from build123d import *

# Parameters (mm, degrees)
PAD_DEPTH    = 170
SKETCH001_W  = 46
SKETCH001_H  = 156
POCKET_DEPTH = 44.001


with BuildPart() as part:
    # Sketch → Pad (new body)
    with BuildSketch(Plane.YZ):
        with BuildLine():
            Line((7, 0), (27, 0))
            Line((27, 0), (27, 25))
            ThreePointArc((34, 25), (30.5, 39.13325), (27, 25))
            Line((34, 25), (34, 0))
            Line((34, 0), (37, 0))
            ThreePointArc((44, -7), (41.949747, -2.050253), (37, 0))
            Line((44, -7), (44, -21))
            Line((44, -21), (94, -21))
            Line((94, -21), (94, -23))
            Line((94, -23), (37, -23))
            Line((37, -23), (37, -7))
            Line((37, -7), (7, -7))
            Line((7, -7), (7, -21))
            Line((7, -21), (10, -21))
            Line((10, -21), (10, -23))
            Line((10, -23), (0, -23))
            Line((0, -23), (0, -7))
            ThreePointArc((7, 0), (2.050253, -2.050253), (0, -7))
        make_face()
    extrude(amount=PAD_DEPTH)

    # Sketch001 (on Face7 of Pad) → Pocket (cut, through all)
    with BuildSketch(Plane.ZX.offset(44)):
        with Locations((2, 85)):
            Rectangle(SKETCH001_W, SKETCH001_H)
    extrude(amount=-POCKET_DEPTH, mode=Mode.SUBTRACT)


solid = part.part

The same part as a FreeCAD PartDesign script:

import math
import FreeCAD as App
import Part
import Sketcher
from FreeCAD import Vector
Q = App.Units.Quantity

doc = App.newDocument("Part")
body = doc.addObject("PartDesign::Body", "Body")

# Sketch on YZ plane
sketch1 = body.newObject("Sketcher::SketchObject", "Sketch")
sketch1.AttachmentSupport = (doc.getObject("YZ_Plane"), [""])
sketch1.MapMode = "FlatFace"
sketch1.addGeometry([
    Part.LineSegment(Vector(27, 0, 0), Vector(7, 0, 0)),  # 0
    Part.ArcOfCircle(Part.Circle(Vector(7.000002, -7.000002, 0), Vector(0, 0, 1), 7.000002), math.radians(90.000013), math.radians(179.999987)),  # 1
    Part.LineSegment(Vector(0, -7, 0), Vector(0, -23, 0)),  # 2
    Part.LineSegment(Vector(0, -23, 0), Vector(10, -23, 0)),  # 3
    Part.LineSegment(Vector(10, -23, 0), Vector(10, -21, 0)),  # 4
    Part.LineSegment(Vector(10, -21, 0), Vector(7, -21, 0)),  # 5
    Part.LineSegment(Vector(7, -21, 0), Vector(7, -7, 0)),  # 6
    Part.LineSegment(Vector(7, -7, 0), Vector(37, -7, 0)),  # 7
    Part.LineSegment(Vector(37, -7, 0), Vector(37, -23, 0)),  # 8
    Part.LineSegment(Vector(37, -23, 0), Vector(94, -23, 0)),  # 9
    Part.LineSegment(Vector(94, -23, 0), Vector(94, -21, 0)),  # 10
    Part.LineSegment(Vector(94, -21, 0), Vector(44, -21, 0)),  # 11
    Part.LineSegment(Vector(44, -21, 0), Vector(44, -7, 0)),  # 12
    Part.ArcOfCircle(Part.Circle(Vector(36.999998, -7.000002, 0), Vector(0, 0, 1), 7.000002), math.radians(0.000013), math.radians(89.999987)),  # 13
    Part.LineSegment(Vector(37, 0, 0), Vector(34, 0, 0)),  # 14
    Part.LineSegment(Vector(34, 0, 0), Vector(34, 25, 0)),  # 15
    Part.ArcOfCircle(Part.Circle(Vector(30.5, 31.63325, 0), Vector(0, 0, 1), 7.5), math.radians(-62.181862), math.radians(242.181862)),  # 16
    Part.LineSegment(Vector(27, 25, 0), Vector(27, 0, 0)),  # 17
], False)
sketch1.addConstraint([
    Sketcher.Constraint("Tangent", 0, 2, 1, 1),
    Sketcher.Constraint("Tangent", 1, 2, 2, 1),
    Sketcher.Constraint("Coincident", 2, 2, 3, 1),
    Sketcher.Constraint("Coincident", 3, 2, 4, 1),
    Sketcher.Constraint("Coincident", 4, 2, 5, 1),
    Sketcher.Constraint("Coincident", 5, 2, 6, 1),
    Sketcher.Constraint("Coincident", 6, 2, 7, 1),
    Sketcher.Constraint("Coincident", 7, 2, 8, 1),
    Sketcher.Constraint("Coincident", 8, 2, 9, 1),
    Sketcher.Constraint("Coincident", 9, 2, 10, 1),
    Sketcher.Constraint("Coincident", 10, 2, 11, 1),
    Sketcher.Constraint("Coincident", 11, 2, 12, 1),
    Sketcher.Constraint("Tangent", 12, 2, 13, 1),
    Sketcher.Constraint("Tangent", 13, 2, 14, 1),
    Sketcher.Constraint("Coincident", 14, 2, 15, 1),
    Sketcher.Constraint("Coincident", 15, 2, 16, 1),
    Sketcher.Constraint("Coincident", 16, 2, 17, 1),
    Sketcher.Constraint("Coincident", 17, 2, 0, 1),
    Sketcher.Constraint("Horizontal", 0),
    Sketcher.Constraint("Vertical", 2),
    Sketcher.Constraint("Horizontal", 3),
    Sketcher.Constraint("Vertical", 4),
    Sketcher.Constraint("Horizontal", 5),
    Sketcher.Constraint("Vertical", 6),
    Sketcher.Constraint("Horizontal", 7),
    Sketcher.Constraint("Vertical", 8),
    Sketcher.Constraint("Horizontal", 9),
    Sketcher.Constraint("Vertical", 10),
    Sketcher.Constraint("Horizontal", 11),
    Sketcher.Constraint("Vertical", 12),
    Sketcher.Constraint("Horizontal", 14),
    Sketcher.Constraint("Vertical", 15),
    Sketcher.Constraint("Vertical", 17),
    Sketcher.Constraint("Coincident", 6, 2, 1, 3),
    Sketcher.Constraint("Coincident", 7, 2, 13, 3),
    Sketcher.Constraint("Equal", 1, 13),
    Sketcher.Constraint("PointOnObject", 0, 2, -1),
    Sketcher.Constraint("PointOnObject", 1, 2, -2),
    Sketcher.Constraint("Horizontal", 3, 2, 8, 2),
    Sketcher.Constraint("Horizontal", 5, 2, 10, 2),
    Sketcher.Constraint("Horizontal", 15, 2, 16, 2),
    Sketcher.Constraint("Equal", 5, 14),
    Sketcher.Constraint("Radius", 1, Q("7.000002 mm")),
    Sketcher.Constraint("Radius", 16, Q("7.5 mm")),
    Sketcher.Constraint("DistanceX", 0, 2, 0, 1, Q("20 mm")),
    Sketcher.Constraint("DistanceX", 3, 1, 3, 2, Q("10 mm")),
    Sketcher.Constraint("DistanceX", 7, 1, 7, 2, Q("30 mm")),
    Sketcher.Constraint("DistanceX", 9, 1, 9, 2, Q("57 mm")),
    Sketcher.Constraint("DistanceY", 2, 2, 2, 1, Q("16 mm")),
    Sketcher.Constraint("DistanceY", 4, 1, 4, 2, Q("2 mm")),
    Sketcher.Constraint("DistanceY", 15, 1, 15, 2, Q("25 mm")),
])
pad1 = body.newObject("PartDesign::Pad", "Pad")
pad1.Profile = sketch1
pad1.Length = 170

# Sketch on XZ plane
sketch2 = body.newObject("Sketcher::SketchObject", "Sketch001")
sketch2.AttachmentSupport = (doc.getObject("XZ_Plane"), [""])
sketch2.MapMode = "FlatFace"
sketch2.AttachmentOffset = App.Placement(Vector(0, 0, -44), App.Rotation())
sketch2.addGeometry([
    Part.LineSegment(Vector(163, -21, 0), Vector(7, -21, 0)),
    Part.LineSegment(Vector(7, -21, 0), Vector(7, 25, 0)),
    Part.LineSegment(Vector(7, 25, 0), Vector(163, 25, 0)),
    Part.LineSegment(Vector(163, 25, 0), Vector(163, -21, 0)),
], False)
sketch2.addConstraint([
    Sketcher.Constraint("Coincident", 0, 2, 1, 1),
    Sketcher.Constraint("Coincident", 1, 2, 2, 1),
    Sketcher.Constraint("Coincident", 2, 2, 3, 1),
    Sketcher.Constraint("Coincident", 3, 2, 0, 1),
    Sketcher.Constraint("Horizontal", 0),
    Sketcher.Constraint("Vertical", 1),
    Sketcher.Constraint("Horizontal", 2),
    Sketcher.Constraint("Vertical", 3),
    Sketcher.Constraint("DistanceX", 0, 2, 0, 1, Q("156 mm")),
    Sketcher.Constraint("DistanceY", 1, 1, 1, 2, Q("46 mm")),
    Sketcher.Constraint("DistanceX", -1, 1, 0, 2, Q("7 mm")),
    Sketcher.Constraint("DistanceY", 0, 2, -1, 1, Q("21 mm")),
])
pocket1 = body.newObject("PartDesign::Pocket", "Pocket")
pocket1.Profile = sketch2
pocket1.Type = "ThroughAll"
pocket1.Reversed = True

doc.recompute()
